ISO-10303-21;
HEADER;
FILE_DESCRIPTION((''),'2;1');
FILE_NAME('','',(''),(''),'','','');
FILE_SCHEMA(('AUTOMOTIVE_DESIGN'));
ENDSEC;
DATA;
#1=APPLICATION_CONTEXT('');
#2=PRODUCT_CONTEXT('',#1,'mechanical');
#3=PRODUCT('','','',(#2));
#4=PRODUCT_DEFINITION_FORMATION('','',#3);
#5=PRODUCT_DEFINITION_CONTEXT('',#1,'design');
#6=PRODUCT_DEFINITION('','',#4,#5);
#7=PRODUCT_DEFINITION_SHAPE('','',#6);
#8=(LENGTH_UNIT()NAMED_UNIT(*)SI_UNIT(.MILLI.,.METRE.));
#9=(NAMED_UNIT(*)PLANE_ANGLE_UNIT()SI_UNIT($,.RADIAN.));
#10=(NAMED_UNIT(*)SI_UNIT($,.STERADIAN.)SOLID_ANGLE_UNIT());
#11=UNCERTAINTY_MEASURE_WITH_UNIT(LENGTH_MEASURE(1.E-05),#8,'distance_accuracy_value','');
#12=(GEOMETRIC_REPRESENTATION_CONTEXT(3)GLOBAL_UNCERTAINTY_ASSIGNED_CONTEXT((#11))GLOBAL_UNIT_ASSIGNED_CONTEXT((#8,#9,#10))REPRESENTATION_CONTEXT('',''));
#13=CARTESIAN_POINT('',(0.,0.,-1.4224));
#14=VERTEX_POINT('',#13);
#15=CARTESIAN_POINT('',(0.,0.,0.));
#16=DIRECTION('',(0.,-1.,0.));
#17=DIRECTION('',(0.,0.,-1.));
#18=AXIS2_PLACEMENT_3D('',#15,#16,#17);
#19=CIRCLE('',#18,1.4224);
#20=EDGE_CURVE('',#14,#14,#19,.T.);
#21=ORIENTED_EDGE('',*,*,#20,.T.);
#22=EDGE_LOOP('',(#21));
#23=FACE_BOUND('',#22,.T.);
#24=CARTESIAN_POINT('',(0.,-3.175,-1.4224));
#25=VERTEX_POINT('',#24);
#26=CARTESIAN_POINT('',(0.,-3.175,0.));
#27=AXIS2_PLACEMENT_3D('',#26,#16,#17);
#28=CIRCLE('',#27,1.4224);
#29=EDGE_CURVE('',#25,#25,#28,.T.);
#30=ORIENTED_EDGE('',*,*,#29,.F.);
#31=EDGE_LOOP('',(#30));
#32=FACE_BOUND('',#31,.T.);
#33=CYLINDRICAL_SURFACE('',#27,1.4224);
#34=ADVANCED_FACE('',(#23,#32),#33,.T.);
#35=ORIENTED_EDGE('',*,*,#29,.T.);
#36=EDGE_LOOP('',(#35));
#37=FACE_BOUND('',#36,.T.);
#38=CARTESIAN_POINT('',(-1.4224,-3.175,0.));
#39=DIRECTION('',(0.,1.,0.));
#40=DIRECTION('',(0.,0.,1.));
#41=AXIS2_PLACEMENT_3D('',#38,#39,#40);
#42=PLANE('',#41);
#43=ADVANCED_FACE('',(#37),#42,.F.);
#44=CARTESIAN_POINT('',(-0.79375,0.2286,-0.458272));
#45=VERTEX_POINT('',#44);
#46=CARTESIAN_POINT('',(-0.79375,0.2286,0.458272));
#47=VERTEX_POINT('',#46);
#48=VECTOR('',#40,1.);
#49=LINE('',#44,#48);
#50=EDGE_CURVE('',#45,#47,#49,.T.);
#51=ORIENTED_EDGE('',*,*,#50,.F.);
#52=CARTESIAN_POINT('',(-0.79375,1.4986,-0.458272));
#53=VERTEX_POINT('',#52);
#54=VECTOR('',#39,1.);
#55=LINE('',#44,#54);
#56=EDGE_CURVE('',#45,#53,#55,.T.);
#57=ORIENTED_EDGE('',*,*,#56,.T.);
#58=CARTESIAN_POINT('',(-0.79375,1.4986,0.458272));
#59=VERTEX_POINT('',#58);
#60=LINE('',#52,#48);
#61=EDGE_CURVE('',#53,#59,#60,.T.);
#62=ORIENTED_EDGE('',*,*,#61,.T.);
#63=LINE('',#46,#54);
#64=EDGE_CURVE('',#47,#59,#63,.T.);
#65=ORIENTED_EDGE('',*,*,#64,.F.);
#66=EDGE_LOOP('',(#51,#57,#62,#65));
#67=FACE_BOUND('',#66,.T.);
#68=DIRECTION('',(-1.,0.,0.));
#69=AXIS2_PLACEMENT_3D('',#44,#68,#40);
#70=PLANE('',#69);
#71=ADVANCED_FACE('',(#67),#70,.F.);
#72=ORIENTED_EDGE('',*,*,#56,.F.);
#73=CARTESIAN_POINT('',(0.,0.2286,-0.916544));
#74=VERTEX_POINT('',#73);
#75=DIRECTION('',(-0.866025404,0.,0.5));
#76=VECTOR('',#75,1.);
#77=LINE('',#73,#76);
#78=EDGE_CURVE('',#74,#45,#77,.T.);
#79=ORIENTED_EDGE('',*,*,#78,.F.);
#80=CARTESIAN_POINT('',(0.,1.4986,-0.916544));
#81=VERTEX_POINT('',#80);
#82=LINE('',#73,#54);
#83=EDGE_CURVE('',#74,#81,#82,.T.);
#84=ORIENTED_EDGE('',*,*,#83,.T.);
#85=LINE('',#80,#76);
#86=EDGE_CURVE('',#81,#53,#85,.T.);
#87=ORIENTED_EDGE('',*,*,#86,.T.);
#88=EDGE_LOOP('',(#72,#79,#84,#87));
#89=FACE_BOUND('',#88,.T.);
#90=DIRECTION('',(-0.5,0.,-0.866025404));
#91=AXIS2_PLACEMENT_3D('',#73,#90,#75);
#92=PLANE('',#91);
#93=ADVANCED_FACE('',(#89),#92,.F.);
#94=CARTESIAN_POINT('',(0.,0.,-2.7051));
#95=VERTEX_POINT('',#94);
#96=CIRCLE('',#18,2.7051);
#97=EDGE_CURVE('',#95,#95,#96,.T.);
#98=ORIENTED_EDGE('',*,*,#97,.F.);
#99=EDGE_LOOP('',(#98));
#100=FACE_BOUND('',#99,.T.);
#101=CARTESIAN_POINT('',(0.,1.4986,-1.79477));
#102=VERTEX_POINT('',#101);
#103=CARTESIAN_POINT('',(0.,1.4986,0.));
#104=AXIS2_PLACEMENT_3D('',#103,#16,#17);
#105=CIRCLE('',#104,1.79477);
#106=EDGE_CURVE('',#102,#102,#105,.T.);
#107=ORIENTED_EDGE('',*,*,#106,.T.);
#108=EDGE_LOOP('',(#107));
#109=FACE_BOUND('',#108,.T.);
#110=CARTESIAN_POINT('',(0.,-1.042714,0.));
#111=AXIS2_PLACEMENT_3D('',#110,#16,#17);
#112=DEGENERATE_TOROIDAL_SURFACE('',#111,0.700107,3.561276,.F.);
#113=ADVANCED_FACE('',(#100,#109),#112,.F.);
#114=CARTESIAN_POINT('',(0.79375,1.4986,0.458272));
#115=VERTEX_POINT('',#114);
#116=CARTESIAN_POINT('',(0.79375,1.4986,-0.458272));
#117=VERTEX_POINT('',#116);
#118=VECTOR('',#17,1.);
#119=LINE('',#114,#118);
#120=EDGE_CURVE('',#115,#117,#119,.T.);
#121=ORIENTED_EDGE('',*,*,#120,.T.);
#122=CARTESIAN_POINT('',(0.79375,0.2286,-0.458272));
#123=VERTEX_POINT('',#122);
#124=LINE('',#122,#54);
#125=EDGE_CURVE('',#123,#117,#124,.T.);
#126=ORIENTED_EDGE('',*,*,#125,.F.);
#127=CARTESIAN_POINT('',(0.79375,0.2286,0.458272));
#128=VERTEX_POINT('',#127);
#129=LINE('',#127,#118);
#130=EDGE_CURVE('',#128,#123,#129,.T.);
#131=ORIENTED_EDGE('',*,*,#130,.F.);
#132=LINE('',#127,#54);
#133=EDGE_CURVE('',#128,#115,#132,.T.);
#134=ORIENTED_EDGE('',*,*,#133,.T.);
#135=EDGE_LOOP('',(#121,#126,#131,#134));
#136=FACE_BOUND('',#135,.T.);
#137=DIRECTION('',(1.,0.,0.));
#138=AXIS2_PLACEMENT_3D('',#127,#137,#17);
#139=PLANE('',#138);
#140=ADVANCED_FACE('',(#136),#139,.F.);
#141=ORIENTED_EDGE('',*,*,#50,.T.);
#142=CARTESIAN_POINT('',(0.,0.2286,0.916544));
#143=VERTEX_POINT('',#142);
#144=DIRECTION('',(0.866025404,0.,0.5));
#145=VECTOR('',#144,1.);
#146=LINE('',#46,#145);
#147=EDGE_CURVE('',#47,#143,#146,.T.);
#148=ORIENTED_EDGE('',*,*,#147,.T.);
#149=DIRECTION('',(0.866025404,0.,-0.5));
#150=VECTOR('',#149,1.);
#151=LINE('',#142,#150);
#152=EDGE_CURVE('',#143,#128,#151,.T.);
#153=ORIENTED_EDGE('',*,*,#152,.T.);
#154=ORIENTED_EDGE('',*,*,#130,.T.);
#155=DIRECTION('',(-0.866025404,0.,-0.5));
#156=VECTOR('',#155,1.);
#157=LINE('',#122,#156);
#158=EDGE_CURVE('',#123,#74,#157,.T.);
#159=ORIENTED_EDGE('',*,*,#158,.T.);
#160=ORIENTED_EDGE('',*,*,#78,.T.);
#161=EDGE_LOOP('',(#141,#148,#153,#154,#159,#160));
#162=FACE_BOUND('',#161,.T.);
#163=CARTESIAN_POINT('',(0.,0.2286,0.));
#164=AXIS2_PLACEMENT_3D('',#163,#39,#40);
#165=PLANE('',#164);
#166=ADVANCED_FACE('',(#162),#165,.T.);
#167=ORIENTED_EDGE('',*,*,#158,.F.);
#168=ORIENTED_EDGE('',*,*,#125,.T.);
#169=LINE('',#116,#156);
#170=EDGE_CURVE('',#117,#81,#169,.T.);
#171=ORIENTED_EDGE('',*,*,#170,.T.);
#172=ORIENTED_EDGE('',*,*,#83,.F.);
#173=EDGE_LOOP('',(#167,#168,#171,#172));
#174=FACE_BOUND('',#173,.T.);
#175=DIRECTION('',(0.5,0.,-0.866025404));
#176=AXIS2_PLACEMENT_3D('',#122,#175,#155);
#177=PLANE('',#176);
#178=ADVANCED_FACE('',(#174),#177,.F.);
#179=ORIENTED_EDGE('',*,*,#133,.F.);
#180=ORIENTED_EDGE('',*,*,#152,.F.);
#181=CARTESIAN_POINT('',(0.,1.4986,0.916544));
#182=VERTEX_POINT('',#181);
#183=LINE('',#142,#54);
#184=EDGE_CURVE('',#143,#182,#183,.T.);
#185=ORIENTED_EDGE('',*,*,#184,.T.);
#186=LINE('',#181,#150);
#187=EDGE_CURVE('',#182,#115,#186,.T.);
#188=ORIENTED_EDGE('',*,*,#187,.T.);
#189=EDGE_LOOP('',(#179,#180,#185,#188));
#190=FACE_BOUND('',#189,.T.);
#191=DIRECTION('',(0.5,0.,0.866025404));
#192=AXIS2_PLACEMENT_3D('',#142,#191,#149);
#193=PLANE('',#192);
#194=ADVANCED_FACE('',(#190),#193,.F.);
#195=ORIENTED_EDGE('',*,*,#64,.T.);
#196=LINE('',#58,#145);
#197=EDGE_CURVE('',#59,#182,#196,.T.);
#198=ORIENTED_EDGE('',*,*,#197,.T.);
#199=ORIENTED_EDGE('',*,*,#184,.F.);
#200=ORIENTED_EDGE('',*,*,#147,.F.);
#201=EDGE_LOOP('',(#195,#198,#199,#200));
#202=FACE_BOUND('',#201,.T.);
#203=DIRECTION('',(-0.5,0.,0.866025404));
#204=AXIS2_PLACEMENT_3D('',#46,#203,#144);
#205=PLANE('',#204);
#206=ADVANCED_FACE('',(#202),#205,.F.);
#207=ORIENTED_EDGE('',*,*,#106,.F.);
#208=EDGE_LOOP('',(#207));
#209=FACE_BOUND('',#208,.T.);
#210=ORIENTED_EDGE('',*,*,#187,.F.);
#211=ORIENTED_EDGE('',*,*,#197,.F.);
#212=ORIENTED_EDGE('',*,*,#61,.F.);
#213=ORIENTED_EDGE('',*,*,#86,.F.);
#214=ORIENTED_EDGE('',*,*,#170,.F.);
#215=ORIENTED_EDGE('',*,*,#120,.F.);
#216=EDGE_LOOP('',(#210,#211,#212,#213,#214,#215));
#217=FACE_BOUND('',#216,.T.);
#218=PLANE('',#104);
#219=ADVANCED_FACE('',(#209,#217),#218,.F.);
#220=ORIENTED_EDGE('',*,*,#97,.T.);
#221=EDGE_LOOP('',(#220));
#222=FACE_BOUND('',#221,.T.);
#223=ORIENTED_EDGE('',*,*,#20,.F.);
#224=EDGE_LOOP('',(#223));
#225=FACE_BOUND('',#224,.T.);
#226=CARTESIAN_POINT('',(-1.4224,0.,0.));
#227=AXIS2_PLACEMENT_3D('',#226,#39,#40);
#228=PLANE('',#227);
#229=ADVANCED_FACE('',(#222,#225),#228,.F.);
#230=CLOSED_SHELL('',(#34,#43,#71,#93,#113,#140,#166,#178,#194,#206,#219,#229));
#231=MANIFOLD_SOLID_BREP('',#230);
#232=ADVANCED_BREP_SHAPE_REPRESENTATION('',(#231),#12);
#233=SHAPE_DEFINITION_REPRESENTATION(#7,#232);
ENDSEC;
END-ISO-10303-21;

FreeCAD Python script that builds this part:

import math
import FreeCAD as App
import Part
import Sketcher

V = App.Vector
Q = App.Units.Quantity


def add_polygon(sketch, points):
    """Adds a closed chain of lines whose ends are joined by coincident constraints."""
    first, n = sketch.GeometryCount, len(points)
    for a, b in zip(points, points[1:] + points[:1]):
        sketch.addGeometry(Part.LineSegment(App.Vector(*a, 0), App.Vector(*b, 0)), False)
    for i in range(n):
        sketch.addConstraint(Sketcher.Constraint("Coincident", first + i, 2, first + (i + 1) % n, 1))

doc = App.newDocument("Part")
body = doc.addObject("PartDesign::Body", "Body")

# Sketch on XY plane
sketch1 = body.newObject("Sketcher::SketchObject", "Sketch")
sketch1.AttachmentSupport = (doc.getObject("XY_Plane"), [""])
sketch1.MapMode = "FlatFace"
sketch1.addGeometry([
    Part.LineSegment(V(-2.7051, 0, 0), V(-1.4224, 0, 0)),  # 0
    Part.LineSegment(V(-1.4224, 0, 0), V(-1.4224, -3.175, 0)),  # 1
    Part.LineSegment(V(-1.4224, -3.175, 0), V(0, -3.175, 0)),  # 2
    Part.LineSegment(V(0, -3.175, 0), V(0, 1.4986, 0)),  # 3
    Part.LineSegment(V(0, 1.4986, 0), V(-1.79477, 1.4986, 0)),  # 4
    Part.ArcOfCircle(Part.Circle(V(0.700107, -1.042714, 0), V(0, 0, 1), 3.561276), math.radians(134.471714), math.radians(162.974808)),  # 5
], False)
sketch1.addConstraint([
    Sketcher.Constraint("Coincident", 0, 2, 1, 1),
    Sketcher.Constraint("Coincident", 1, 2, 2, 1),
    Sketcher.Constraint("Coincident", 2, 2, 3, 1),
    Sketcher.Constraint("Coincident", 3, 2, 4, 1),
    Sketcher.Constraint("Coincident", 4, 2, 5, 1),
    Sketcher.Constraint("Coincident", 5, 2, 0, 1),
    Sketcher.Constraint("Horizontal", 0),
    Sketcher.Constraint("Vertical", 1),
    Sketcher.Constraint("Horizontal", 2),
    Sketcher.Constraint("Vertical", 3),
    Sketcher.Constraint("Horizontal", 4),
    Sketcher.Constraint("PointOnObject", 0, 2, -1),
    Sketcher.Constraint("PointOnObject", 2, 2, -2),
    Sketcher.Constraint("DistanceX", 2, 1, 2, 2, Q("0.056 in")),
    Sketcher.Constraint("DistanceY", 1, 2, 1, 1, Q("0.125 in")),
    Sketcher.Constraint("DistanceY", 3, 1, 3, 2, Q("0.184 in")),
    Sketcher.Constraint("DistanceX", 0, 1, 0, 2, Q("0.0505 in")),
    Sketcher.Constraint("Radius", 5, Q("3.561276 mm")),
    Sketcher.Constraint("DistanceX", 4, 2, 4, 1, Q("1.79477 mm")),
])
revolution = body.newObject("PartDesign::Revolution", "Revolution")
revolution.Profile = sketch1
revolution.ReferenceAxis = (sketch1, ["V_Axis"])
revolution.Angle = 360

# Sketch on XZ plane
sketch2 = body.newObject("Sketcher::SketchObject", "Sketch001")
sketch2.AttachmentSupport = (doc.getObject("XZ_Plane"), [""])
sketch2.MapMode = "FlatFace"
sketch2.AttachmentOffset = App.Placement(V(0, 0, -0.059 * 25.4), App.Rotation())
add_polygon(sketch2, [(-0.79375, -0.458272), (-0.79375, 0.458272), (0, 0.916544), (0.79375, 0.458272), (0.79375, -0.458272), (0, -0.916544)])  # lines 0-5
sketch2.addConstraint([
    Sketcher.Constraint("Vertical", 0),
    Sketcher.Constraint("Vertical", 3),
    Sketcher.Constraint("Symmetric", 0, 2, 3, 2, -1, 1),
    Sketcher.Constraint("Symmetric", 1, 2, 4, 2, -1, 1),
    Sketcher.Constraint("PointOnObject", 1, 2, -2),
    Sketcher.Constraint("Parallel", 2, 5),
    Sketcher.Constraint("Horizontal", 0, 2, 2, 2),
    Sketcher.Constraint("Angle", 1, Q("30 deg")),
    Sketcher.Constraint("DistanceX", 0, 2, -1, 1, Q("0.03125 in")),
    Sketcher.Constraint("DistanceY", 0, 1, 0, 2, Q("0.916544 mm")),
])
pocket1 = body.newObject("PartDesign::Pocket", "Pocket")
pocket1.Profile = sketch2
pocket1.Length = Q("0.05 in")
pocket1.Reversed = True

doc.recompute()
